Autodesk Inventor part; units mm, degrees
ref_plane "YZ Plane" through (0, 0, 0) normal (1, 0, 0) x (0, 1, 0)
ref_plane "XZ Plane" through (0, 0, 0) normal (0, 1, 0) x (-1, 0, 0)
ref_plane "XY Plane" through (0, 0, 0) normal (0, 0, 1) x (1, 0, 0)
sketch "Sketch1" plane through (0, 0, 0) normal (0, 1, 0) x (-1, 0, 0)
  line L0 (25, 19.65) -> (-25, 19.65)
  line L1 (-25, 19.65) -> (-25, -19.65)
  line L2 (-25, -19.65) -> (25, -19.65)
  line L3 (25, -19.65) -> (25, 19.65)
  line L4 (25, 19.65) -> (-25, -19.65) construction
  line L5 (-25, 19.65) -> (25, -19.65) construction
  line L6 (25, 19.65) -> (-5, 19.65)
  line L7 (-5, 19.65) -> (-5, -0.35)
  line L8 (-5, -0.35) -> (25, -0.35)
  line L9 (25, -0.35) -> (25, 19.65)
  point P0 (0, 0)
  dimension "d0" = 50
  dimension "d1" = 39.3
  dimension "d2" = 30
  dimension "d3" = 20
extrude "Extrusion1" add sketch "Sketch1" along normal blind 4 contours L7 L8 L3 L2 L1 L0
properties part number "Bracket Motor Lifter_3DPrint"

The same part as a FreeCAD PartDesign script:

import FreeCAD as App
import Part
import Sketcher

V = App.Vector

doc = App.newDocument("Part")
body = doc.addObject("PartDesign::Body", "Body")

# Sketch on XZ plane
sketch1 = doc.addObject("Sketcher::SketchObject", "Sketch")
body.addObject(sketch1)
sketch1.AttachmentSupport = (doc.XZ_Plane, [""])
sketch1.MapMode = "FlatFace"
sketch1.addGeometry([
    Part.LineSegment(V(5, 0, 0), V(5, 20, 0)),  # 0
    Part.LineSegment(V(5, 20, 0), V(25, 20, 0)),  # 1
    Part.LineSegment(V(25, 20, 0), V(25, -20, 0)),  # 2
    Part.LineSegment(V(25, -20, 0), V(-25, -20, 0)),  # 3
    Part.LineSegment(V(-25, -20, 0), V(-25, 0, 0)),  # 4
    Part.LineSegment(V(-25, 0, 0), V(5, 0, 0)),  # 5
], False)
sketch1.addConstraint([
    Sketcher.Constraint("Coincident", 0, 2, 1, 1),
    Sketcher.Constraint("Coincident", 1, 2, 2, 1),
    Sketcher.Constraint("Coincident", 2, 2, 3, 1),
    Sketcher.Constraint("Coincident", 3, 2, 4, 1),
    Sketcher.Constraint("Coincident", 4, 2, 5, 1),
    Sketcher.Constraint("Coincident", 5, 2, 0, 1),
    Sketcher.Constraint("Vertical", 0),
    Sketcher.Constraint("Horizontal", 1),
    Sketcher.Constraint("Vertical", 2),
    Sketcher.Constraint("Horizontal", 3),
    Sketcher.Constraint("Vertical", 4),
    Sketcher.Constraint("Horizontal", 5),
    Sketcher.Constraint("Symmetric", 1, 2, 3, 2, -1, 1),
    Sketcher.Constraint("Equal", 1, 0),
    Sketcher.Constraint("DistanceX", 1, 1, 1, 2, 20.0),
    Sketcher.Constraint("DistanceX", 3, 2, 3, 1, 50.0),
    Sketcher.Constraint("DistanceY", 2, 2, 2, 1, 39.3),
])
pad1 = doc.addObject("PartDesign::Pad", "Pad")
body.addObject(pad1)
pad1.Profile = sketch1
pad1.Length = 4
pad1.Reversed = True

doc.recompute()
